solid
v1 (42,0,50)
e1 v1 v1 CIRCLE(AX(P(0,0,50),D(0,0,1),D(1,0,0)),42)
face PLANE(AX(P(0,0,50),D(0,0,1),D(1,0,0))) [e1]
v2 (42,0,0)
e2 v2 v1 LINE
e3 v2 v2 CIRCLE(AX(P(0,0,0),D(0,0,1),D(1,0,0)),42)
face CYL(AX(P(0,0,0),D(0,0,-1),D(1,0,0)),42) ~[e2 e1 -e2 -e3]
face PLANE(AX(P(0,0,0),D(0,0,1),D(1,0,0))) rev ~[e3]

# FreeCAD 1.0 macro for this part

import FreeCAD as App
import Part
import Sketcher
from FreeCAD import Vector

doc = App.newDocument("Part")
body = doc.addObject("PartDesign::Body", "Body")

sketch1 = body.newObject("Sketcher::SketchObject", "Sketch")
sketch1.AttachmentSupport = (doc.getObject("XY_Plane"), [""])
sketch1.MapMode = "FlatFace"
sketch1.addGeometry(Part.Circle(Vector(0, 0, 0), Vector(0, 0, 1), 42), False)
sketch1.addConstraint([
    Sketcher.Constraint("Coincident", 0, 3, -1, 1),
    Sketcher.Constraint("Diameter", 0, 84.0),
])
pad1 = body.newObject("PartDesign::Pad", "Pad")
pad1.Profile = sketch1
pad1.Length = 50

doc.recompute()
